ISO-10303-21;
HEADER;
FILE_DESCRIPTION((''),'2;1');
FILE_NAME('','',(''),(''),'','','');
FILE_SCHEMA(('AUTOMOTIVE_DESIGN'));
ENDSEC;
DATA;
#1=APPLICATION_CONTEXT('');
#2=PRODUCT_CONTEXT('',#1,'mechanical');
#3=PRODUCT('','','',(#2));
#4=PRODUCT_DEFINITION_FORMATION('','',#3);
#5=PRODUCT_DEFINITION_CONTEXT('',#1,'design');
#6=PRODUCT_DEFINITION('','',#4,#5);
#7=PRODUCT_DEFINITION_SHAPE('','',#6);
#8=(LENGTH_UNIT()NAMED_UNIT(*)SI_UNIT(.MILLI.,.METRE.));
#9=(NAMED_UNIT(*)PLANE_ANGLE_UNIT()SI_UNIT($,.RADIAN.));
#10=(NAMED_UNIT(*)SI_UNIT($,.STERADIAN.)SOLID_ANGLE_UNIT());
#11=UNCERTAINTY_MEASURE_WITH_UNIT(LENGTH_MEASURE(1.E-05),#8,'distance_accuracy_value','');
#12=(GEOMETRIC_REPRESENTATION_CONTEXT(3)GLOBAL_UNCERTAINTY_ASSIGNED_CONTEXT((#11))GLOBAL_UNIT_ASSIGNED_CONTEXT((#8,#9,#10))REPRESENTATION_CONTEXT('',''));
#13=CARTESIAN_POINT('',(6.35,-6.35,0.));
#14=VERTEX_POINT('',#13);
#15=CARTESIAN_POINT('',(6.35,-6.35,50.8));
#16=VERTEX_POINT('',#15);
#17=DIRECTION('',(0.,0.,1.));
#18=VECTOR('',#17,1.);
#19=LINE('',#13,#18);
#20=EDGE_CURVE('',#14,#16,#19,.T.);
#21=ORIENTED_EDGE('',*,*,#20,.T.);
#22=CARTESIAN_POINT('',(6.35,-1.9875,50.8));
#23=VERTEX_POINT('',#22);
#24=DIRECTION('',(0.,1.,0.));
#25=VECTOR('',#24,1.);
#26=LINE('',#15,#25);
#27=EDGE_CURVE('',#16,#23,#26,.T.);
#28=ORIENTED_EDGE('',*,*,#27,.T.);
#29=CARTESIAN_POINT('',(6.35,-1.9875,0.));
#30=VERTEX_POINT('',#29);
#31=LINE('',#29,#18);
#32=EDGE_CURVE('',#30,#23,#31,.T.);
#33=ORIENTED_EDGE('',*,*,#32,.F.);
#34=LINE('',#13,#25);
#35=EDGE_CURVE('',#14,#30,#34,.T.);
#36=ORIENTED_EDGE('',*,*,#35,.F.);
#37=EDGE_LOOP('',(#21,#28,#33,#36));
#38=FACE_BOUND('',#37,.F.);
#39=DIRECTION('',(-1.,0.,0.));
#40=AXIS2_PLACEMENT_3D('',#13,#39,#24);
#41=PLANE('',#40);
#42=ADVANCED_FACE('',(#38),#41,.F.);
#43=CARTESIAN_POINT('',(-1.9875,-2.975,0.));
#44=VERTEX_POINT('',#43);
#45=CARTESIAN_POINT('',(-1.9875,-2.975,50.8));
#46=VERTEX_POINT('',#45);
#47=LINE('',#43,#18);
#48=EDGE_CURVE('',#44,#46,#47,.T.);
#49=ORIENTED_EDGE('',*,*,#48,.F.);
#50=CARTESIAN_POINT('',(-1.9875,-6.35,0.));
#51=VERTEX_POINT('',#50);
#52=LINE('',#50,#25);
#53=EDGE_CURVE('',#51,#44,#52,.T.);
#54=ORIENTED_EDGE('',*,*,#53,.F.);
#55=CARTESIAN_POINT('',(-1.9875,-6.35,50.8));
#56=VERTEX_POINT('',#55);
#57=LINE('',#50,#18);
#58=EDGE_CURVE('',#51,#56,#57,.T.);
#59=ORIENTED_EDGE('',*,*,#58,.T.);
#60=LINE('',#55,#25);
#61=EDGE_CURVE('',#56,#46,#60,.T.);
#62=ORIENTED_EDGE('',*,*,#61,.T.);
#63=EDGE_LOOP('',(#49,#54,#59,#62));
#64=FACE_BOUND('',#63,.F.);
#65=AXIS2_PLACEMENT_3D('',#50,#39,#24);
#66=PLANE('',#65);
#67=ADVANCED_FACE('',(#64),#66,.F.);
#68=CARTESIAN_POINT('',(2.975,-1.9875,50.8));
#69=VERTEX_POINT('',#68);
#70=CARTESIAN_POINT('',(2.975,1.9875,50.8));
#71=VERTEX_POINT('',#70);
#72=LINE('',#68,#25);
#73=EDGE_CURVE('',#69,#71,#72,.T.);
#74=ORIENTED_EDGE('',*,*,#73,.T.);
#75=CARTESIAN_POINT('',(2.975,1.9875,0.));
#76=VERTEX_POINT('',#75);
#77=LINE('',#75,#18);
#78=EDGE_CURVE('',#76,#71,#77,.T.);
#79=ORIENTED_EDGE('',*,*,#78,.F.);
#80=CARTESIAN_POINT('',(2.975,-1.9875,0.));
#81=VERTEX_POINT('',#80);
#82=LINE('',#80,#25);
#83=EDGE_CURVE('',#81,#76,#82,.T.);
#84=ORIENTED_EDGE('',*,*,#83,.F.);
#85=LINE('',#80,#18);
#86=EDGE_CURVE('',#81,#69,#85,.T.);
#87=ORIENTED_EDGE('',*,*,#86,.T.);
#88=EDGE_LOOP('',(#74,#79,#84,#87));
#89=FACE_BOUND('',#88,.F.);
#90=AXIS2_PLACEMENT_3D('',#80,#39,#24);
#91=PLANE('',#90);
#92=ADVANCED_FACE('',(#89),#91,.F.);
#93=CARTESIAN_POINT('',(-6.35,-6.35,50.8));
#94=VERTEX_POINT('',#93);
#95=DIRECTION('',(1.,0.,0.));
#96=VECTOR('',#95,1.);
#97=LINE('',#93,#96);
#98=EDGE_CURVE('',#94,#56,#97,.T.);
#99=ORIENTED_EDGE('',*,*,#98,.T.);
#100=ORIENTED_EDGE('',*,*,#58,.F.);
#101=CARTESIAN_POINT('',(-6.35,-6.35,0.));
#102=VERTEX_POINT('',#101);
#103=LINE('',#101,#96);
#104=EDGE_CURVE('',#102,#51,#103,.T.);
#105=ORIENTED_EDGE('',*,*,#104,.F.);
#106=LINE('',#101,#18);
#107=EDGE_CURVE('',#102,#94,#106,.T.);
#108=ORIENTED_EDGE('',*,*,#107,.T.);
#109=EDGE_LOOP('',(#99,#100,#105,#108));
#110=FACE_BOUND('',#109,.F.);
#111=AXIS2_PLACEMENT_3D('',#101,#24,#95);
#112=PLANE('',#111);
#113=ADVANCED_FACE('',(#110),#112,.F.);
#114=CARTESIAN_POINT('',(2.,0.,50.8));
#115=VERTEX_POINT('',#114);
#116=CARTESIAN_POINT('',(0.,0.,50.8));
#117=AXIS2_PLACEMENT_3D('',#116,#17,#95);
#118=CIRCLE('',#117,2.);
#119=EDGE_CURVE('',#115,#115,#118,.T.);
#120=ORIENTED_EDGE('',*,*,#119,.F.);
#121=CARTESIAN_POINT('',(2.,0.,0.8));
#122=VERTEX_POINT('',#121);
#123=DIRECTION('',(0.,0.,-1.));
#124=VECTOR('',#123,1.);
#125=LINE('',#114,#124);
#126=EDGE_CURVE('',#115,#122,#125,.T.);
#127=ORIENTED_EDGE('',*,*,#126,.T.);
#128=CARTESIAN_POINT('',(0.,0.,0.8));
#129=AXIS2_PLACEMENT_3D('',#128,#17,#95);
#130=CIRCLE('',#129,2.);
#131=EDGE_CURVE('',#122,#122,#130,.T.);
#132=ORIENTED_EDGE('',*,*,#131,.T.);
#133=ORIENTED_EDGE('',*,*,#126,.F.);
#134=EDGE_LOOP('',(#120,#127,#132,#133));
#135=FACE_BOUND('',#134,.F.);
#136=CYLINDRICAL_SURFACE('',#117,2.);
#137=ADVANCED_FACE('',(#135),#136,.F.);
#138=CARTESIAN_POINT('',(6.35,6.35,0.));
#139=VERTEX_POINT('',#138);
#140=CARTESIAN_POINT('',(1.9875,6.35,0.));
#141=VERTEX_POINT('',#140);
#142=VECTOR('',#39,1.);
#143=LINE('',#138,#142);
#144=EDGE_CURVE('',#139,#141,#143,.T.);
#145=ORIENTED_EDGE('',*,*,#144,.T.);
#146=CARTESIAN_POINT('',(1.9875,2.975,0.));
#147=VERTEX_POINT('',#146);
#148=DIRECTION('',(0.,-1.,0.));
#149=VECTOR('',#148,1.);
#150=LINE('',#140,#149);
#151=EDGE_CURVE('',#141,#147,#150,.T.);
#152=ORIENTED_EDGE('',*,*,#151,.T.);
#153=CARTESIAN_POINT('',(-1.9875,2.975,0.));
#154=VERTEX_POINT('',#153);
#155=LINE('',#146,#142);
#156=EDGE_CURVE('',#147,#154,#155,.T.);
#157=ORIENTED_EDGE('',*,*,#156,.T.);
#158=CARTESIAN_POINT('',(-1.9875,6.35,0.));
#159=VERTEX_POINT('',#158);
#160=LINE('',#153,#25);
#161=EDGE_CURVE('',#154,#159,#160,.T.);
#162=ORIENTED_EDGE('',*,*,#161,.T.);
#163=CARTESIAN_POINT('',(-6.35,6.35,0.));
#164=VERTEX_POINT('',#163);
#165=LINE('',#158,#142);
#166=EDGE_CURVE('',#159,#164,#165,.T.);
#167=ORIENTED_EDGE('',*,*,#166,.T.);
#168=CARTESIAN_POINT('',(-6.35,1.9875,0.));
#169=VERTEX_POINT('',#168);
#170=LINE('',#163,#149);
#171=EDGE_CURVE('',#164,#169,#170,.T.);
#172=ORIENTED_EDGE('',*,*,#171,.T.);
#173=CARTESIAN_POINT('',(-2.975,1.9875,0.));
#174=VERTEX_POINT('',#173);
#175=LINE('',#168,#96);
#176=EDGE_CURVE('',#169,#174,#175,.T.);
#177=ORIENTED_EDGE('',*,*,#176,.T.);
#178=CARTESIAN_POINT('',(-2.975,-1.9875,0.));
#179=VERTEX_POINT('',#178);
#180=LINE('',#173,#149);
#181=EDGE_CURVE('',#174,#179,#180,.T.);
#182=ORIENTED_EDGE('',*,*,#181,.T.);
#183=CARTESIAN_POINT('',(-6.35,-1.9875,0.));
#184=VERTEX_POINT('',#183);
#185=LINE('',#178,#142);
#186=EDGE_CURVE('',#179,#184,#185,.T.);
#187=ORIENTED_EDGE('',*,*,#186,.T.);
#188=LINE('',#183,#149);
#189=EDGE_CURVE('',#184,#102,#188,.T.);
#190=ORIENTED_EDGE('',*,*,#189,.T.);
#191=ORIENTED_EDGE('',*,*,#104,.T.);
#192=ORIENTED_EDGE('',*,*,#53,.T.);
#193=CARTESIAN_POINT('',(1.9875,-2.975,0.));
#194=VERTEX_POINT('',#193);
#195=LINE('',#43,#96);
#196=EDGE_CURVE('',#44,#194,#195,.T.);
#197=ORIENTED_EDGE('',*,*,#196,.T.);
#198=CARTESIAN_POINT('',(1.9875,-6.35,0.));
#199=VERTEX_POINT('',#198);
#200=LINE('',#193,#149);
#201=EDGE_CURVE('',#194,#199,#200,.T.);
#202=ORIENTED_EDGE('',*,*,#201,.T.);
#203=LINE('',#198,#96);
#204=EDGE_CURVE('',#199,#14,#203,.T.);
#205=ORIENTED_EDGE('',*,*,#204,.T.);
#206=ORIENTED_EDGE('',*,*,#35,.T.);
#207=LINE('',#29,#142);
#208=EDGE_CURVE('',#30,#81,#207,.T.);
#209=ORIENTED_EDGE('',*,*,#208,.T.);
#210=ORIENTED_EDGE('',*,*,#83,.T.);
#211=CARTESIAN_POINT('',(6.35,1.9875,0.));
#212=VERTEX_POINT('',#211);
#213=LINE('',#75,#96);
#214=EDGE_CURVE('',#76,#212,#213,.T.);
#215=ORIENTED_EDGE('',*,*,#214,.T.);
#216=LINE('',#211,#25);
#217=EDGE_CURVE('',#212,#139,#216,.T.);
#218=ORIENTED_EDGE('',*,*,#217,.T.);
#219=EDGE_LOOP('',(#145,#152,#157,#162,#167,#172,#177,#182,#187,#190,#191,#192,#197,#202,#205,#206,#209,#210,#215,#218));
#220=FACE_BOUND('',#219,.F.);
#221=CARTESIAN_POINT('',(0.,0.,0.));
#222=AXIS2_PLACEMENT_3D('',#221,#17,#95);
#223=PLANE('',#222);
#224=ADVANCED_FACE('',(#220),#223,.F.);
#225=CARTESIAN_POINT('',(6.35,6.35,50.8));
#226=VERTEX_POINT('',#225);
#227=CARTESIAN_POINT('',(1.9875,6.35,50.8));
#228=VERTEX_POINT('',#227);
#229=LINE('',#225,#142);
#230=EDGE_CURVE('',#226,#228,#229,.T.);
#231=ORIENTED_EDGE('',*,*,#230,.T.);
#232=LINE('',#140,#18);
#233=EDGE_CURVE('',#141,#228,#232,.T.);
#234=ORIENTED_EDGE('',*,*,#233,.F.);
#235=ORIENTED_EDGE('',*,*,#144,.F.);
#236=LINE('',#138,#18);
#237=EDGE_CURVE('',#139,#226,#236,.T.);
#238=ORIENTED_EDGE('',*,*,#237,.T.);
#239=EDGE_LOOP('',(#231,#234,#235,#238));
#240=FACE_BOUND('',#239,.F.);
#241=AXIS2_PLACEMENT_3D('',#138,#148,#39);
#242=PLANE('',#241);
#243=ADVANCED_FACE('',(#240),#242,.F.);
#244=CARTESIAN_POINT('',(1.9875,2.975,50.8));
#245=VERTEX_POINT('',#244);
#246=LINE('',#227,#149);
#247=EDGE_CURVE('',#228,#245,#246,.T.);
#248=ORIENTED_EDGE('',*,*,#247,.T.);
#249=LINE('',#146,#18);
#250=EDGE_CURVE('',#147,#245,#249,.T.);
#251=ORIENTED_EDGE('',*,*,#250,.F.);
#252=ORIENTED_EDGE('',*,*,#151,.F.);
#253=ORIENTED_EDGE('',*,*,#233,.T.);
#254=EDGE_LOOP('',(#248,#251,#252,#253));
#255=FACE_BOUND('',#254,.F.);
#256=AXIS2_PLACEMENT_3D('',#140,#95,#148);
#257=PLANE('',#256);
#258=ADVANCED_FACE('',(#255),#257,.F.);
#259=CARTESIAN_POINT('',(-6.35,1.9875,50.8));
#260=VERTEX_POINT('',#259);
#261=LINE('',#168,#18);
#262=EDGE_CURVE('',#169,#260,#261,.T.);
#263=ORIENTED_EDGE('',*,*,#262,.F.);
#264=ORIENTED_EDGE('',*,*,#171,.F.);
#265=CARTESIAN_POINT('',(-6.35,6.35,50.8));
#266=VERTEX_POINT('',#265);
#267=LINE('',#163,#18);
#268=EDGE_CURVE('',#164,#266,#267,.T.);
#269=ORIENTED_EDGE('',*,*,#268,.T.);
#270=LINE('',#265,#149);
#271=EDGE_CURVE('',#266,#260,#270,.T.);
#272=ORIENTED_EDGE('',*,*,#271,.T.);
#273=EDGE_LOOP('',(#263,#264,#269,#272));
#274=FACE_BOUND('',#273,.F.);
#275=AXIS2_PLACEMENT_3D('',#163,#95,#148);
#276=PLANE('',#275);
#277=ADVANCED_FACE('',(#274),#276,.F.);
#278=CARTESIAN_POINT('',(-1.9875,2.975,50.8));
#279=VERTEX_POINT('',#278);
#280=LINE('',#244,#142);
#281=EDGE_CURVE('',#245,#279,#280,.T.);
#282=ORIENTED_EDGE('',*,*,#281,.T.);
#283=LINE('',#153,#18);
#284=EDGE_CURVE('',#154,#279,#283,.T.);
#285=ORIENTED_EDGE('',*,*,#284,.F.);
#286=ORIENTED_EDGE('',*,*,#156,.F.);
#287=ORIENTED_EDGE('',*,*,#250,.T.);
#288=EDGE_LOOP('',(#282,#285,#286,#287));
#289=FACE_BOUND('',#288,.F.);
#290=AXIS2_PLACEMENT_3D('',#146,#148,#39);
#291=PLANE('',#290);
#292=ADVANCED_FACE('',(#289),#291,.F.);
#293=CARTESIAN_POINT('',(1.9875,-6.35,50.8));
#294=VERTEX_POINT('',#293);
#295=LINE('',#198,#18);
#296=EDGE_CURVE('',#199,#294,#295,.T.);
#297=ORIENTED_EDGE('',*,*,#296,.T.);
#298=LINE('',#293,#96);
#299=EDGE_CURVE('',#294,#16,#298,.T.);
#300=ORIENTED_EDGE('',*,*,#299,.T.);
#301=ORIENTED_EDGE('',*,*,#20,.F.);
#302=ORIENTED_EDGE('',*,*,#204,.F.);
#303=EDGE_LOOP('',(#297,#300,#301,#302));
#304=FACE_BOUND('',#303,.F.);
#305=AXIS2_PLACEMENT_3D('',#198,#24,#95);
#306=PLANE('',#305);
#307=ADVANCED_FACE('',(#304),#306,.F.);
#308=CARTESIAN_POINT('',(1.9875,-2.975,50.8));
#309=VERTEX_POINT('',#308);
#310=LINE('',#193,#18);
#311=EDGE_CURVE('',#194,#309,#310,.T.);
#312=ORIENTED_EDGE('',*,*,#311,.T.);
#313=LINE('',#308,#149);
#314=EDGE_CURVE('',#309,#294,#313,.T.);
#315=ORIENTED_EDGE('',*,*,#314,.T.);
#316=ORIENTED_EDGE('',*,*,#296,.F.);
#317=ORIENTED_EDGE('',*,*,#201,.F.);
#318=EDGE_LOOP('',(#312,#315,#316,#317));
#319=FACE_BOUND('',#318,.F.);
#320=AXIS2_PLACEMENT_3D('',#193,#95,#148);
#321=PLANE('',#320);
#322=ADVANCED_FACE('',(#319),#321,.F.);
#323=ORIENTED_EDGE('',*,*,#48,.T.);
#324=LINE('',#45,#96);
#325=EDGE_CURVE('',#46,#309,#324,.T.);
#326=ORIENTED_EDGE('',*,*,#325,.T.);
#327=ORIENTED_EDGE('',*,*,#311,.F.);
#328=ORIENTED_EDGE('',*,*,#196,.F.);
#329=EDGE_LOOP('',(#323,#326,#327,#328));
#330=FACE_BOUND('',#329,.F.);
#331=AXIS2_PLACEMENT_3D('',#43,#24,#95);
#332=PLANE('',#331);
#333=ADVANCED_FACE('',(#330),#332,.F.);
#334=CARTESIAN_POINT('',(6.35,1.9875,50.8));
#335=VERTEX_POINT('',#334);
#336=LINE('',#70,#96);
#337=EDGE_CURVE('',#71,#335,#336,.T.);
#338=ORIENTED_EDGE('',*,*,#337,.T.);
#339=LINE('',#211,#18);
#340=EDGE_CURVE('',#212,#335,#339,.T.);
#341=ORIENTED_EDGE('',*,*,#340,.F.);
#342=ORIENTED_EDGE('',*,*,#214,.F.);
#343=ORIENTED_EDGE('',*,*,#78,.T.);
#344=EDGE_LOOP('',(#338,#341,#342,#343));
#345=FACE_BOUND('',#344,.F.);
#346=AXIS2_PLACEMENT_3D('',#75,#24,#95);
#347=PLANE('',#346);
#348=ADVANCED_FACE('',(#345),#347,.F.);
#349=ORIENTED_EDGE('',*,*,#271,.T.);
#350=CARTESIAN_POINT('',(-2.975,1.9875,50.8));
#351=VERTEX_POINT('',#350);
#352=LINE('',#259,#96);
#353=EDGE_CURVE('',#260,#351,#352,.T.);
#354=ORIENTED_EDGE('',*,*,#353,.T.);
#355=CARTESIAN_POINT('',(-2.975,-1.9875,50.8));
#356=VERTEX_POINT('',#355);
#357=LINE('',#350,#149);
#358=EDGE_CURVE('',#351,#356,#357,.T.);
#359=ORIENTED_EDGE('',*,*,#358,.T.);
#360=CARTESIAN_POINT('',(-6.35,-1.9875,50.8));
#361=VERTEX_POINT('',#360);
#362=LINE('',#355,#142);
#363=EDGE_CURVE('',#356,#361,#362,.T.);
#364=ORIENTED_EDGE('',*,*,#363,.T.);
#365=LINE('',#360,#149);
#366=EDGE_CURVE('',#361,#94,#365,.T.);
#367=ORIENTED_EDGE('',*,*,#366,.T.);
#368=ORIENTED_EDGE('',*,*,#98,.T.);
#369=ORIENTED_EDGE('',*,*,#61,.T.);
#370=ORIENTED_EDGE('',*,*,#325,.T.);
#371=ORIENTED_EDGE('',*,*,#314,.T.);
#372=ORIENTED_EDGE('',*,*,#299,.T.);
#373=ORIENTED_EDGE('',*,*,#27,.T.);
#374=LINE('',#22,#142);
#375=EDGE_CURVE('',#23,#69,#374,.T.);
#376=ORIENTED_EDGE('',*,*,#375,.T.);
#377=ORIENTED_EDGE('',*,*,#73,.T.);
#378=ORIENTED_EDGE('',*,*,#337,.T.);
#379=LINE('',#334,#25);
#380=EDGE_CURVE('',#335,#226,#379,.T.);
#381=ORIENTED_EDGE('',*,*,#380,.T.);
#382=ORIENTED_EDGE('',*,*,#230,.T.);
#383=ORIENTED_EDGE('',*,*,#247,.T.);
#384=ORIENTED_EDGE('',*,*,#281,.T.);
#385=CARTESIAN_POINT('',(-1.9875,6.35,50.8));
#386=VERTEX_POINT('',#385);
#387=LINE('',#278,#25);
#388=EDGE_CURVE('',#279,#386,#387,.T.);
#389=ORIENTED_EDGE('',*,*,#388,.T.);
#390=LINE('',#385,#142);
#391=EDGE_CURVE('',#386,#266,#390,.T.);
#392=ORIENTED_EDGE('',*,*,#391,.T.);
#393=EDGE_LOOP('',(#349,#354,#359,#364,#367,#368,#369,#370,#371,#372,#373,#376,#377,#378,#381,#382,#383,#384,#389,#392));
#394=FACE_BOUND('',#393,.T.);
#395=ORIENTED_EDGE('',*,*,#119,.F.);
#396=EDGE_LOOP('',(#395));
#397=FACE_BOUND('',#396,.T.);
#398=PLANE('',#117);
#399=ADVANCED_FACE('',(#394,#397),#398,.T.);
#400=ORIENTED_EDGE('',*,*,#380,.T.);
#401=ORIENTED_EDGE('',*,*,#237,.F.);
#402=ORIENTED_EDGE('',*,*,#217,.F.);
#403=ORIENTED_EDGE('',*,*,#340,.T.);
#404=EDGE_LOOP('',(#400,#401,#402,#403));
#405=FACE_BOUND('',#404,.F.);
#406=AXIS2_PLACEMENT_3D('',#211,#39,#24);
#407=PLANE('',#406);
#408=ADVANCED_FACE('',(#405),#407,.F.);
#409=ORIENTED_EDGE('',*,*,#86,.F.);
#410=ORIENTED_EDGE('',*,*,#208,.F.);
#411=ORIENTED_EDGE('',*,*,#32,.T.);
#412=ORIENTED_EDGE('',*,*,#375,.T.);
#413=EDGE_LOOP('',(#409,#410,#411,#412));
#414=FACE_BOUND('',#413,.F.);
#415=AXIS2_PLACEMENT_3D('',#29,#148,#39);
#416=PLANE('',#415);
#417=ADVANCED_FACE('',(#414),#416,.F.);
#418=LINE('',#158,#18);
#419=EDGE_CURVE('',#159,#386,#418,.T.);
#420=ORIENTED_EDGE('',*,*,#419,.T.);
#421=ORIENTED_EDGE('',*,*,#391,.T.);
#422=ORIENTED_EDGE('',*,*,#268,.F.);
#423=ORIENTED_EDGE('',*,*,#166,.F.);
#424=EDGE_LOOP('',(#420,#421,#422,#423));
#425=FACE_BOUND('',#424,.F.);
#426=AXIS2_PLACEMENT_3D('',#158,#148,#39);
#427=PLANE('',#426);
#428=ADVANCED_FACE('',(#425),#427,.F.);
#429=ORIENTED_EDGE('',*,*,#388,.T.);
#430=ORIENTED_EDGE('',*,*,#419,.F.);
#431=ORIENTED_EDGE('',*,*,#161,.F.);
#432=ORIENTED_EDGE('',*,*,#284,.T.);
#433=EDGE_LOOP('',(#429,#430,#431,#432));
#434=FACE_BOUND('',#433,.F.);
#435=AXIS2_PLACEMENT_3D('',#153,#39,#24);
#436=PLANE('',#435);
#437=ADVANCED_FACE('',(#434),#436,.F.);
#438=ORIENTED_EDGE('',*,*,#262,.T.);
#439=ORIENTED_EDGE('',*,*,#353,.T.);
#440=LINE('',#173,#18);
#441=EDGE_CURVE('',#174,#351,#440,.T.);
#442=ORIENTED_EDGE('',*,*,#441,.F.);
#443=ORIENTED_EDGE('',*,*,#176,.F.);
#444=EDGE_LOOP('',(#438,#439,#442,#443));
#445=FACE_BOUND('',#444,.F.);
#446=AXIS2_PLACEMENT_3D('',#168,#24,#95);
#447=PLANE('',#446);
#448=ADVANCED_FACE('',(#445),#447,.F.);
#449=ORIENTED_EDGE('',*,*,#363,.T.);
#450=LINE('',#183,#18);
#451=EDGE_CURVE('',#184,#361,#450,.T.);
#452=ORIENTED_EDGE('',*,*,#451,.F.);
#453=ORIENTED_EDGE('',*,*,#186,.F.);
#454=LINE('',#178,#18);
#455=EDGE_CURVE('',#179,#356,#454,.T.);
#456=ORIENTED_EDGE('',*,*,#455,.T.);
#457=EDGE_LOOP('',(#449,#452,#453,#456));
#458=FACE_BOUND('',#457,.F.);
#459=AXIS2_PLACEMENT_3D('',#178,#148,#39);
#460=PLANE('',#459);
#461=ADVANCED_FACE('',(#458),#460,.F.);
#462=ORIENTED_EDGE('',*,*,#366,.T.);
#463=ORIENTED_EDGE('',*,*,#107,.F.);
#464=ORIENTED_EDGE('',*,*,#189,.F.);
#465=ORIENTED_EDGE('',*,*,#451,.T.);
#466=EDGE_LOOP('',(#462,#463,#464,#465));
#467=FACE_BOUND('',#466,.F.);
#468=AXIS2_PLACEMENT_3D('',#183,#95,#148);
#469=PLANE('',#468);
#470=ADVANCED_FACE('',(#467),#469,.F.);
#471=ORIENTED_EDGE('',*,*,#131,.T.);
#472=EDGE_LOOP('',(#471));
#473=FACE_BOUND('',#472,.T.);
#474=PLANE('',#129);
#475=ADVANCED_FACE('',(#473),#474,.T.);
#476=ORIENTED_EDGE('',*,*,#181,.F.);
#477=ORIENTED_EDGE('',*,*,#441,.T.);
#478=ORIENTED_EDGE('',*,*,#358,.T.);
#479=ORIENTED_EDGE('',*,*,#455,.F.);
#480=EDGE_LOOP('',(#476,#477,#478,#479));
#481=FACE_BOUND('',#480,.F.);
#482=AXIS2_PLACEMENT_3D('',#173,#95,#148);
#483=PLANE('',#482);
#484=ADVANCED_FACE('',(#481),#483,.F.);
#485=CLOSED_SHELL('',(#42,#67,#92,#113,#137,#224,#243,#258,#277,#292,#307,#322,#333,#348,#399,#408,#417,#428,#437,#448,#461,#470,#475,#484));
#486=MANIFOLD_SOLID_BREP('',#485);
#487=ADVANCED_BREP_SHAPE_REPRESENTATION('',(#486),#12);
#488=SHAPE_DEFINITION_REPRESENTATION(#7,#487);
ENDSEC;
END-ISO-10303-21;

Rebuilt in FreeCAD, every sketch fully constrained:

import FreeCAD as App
import Part
import Sketcher
from FreeCAD import Vector


def add_polygon(sketch, points):
    """Adds a closed chain of lines whose ends are joined by coincident constraints."""
    first, n = sketch.GeometryCount, len(points)
    for a, b in zip(points, points[1:] + points[:1]):
        sketch.addGeometry(Part.LineSegment(App.Vector(*a, 0), App.Vector(*b, 0)), False)
    for i in range(n):
        sketch.addConstraint(Sketcher.Constraint("Coincident", first + i, 2, first + (i + 1) % n, 1))

doc = App.newDocument("Part")
body = doc.addObject("PartDesign::Body", "Body")

sketch1 = doc.addObject("Sketcher::SketchObject", "Sketch")
body.addObject(sketch1)
sketch1.AttachmentSupport = (doc.XY_Plane, [""])
sketch1.MapMode = "FlatFace"
add_polygon(sketch1, [(-2, 6.3), (-6.3, 6.3), (-6.3, 2), (-3, 2), (-3, -2), (-6.3, -2), (-6.3, -6.3), (-2, -6.3), (-2, -3), (2, -3), (2, -6.3), (6.3, -6.3), (6.3, -2), (3, -2), (3, 2), (6.3, 2), (6.3, 6.3), (2, 6.3), (2, 3), (-2, 3)])
sketch1.addConstraint(Sketcher.Constraint("Horizontal", 0))
sketch1.addConstraint(Sketcher.Constraint("Vertical", 1))
sketch1.addConstraint(Sketcher.Constraint("Horizontal", 2))
sketch1.addConstraint(Sketcher.Constraint("Vertical", 3))
sketch1.addConstraint(Sketcher.Constraint("Horizontal", 4))
sketch1.addConstraint(Sketcher.Constraint("Vertical", 5))
sketch1.addConstraint(Sketcher.Constraint("Horizontal", 6))
sketch1.addConstraint(Sketcher.Constraint("Vertical", 7))
sketch1.addConstraint(Sketcher.Constraint("Horizontal", 8))
sketch1.addConstraint(Sketcher.Constraint("Vertical", 9))
sketch1.addConstraint(Sketcher.Constraint("Horizontal", 10))
sketch1.addConstraint(Sketcher.Constraint("Vertical", 11))
sketch1.addConstraint(Sketcher.Constraint("Horizontal", 12))
sketch1.addConstraint(Sketcher.Constraint("Vertical", 13))
sketch1.addConstraint(Sketcher.Constraint("Horizontal", 14))
sketch1.addConstraint(Sketcher.Constraint("Vertical", 15))
sketch1.addConstraint(Sketcher.Constraint("Horizontal", 16))
sketch1.addConstraint(Sketcher.Constraint("Vertical", 17))
sketch1.addConstraint(Sketcher.Constraint("Horizontal", 18))
sketch1.addConstraint(Sketcher.Constraint("Vertical", 19))
sketch1.addConstraint(Sketcher.Constraint("Symmetric", 0, 2, 10, 2, -1, 1))
sketch1.addConstraint(Sketcher.Constraint("Symmetric", 2, 2, 12, 2, -1, 1))
sketch1.addConstraint(Sketcher.Constraint("Symmetric", 4, 2, 14, 2, -1, 1))
sketch1.addConstraint(Sketcher.Constraint("Symmetric", 6, 2, 16, 2, -1, 1))
sketch1.addConstraint(Sketcher.Constraint("Symmetric", 8, 2, 18, 2, -1, 1))
sketch1.addConstraint(Sketcher.Constraint("Symmetric", 6, 2, 9, 2, -2))
sketch1.addConstraint(Sketcher.Constraint("Symmetric", 4, 2, 11, 2, -2))
sketch1.addConstraint(Sketcher.Constraint("Equal", 16, 1))
sketch1.addConstraint(Sketcher.Constraint("Equal", 18, 3))
sketch1.addConstraint(Sketcher.Constraint("Equal", 14, 7))
sketch1.addConstraint(Sketcher.Constraint("DistanceY", 5, 2, 0, 2, 12.7))
sketch1.addConstraint(Sketcher.Constraint("DistanceX", 2, 1, 2, 2, 3.375))
sketch1.addConstraint(Sketcher.Constraint("DistanceX", 8, 1, 8, 2, 3.975))
pad1 = doc.addObject("PartDesign::Pad", "Pad")
body.addObject(pad1)
pad1.Profile = sketch1
pad1.Length = 50.8

sketch2 = doc.addObject("Sketcher::SketchObject", "Sketch001")
body.addObject(sketch2)
sketch2.AttachmentSupport = (doc.XY_Plane, [""])
sketch2.MapMode = "FlatFace"
sketch2.AttachmentOffset = App.Placement(Vector(0, 0, 50.8), App.Rotation())
sketch2.addGeometry(Part.Circle(Vector(0, 0, 0), Vector(0, 0, 1), 2), False)
sketch2.addConstraint(Sketcher.Constraint("Coincident", 0, 3, -1, 1))
sketch2.addConstraint(Sketcher.Constraint("Diameter", 0, 4.0))
pocket1 = doc.addObject("PartDesign::Pocket", "Pocket")
body.addObject(pocket1)
pocket1.Profile = sketch2
pocket1.Length = 50

doc.recompute()
